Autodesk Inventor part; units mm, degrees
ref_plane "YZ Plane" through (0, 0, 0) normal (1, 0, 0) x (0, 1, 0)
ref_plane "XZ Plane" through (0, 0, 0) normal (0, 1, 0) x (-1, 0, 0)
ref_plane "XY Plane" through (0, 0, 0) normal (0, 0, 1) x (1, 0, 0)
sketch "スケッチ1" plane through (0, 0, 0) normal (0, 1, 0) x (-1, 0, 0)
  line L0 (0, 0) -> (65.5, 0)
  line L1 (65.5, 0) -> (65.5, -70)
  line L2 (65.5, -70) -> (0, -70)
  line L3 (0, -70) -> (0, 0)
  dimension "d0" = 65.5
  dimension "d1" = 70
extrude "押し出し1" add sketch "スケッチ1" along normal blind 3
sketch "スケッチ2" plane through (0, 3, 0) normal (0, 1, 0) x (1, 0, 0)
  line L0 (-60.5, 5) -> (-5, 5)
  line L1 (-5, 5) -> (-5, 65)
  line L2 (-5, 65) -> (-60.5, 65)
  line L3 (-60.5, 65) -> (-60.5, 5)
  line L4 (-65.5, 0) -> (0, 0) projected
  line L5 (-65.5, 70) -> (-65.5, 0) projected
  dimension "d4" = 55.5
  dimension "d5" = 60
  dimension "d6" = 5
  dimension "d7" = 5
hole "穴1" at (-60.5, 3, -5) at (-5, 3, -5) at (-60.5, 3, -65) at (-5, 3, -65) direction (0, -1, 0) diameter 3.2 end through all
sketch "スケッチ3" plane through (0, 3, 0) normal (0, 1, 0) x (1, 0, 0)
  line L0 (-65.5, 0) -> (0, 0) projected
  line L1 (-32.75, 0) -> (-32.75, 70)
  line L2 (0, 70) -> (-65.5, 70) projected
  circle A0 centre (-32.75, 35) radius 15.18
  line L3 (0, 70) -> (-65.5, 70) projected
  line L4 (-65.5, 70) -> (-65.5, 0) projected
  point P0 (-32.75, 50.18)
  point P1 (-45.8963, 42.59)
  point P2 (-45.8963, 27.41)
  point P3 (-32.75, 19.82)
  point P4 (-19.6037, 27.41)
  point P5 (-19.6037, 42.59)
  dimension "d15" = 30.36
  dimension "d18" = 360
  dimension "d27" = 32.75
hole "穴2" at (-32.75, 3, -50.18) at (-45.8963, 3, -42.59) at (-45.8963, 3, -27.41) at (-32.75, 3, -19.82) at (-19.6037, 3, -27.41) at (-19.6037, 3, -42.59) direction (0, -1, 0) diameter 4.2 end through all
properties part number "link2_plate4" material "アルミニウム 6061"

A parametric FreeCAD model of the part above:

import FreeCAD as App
import Part
import Sketcher
from FreeCAD import Vector
Q = App.Units.Quantity


def add_polygon(sketch, points):
    """Adds a closed chain of lines whose ends are joined by coincident constraints."""
    first, n = sketch.GeometryCount, len(points)
    for a, b in zip(points, points[1:] + points[:1]):
        sketch.addGeometry(Part.LineSegment(App.Vector(*a, 0), App.Vector(*b, 0)), False)
    for i in range(n):
        sketch.addConstraint(Sketcher.Constraint("Coincident", first + i, 2, first + (i + 1) % n, 1))

doc = App.newDocument("Part")
params = doc.addObject("Spreadsheet::Sheet", "Params")
for row, (alias, value) in enumerate([
    ("sketch1_height", "70 mm"),
    ("sketch1_width", "65.5 mm"),
    ("pad1_length", "3 mm"),
    ("sketch2_diameter", "3.2 mm"),
    ("hole_diameter", "3.2 mm"),
    ("sketch3_diameter", "4.2 mm"),
    ("hole2_diameter", "4.2 mm"),
], start=1):
    params.set(f"A{row}", alias)
    params.set(f"B{row}", "=" + value)
    params.setAlias(f"B{row}", alias)

body = doc.addObject("PartDesign::Body", "Body")

sketch1 = body.newObject("Sketcher::SketchObject", "Sketch")
sketch1.AttachmentSupport = (doc.getObject("XZ_Plane"), [""])
sketch1.MapMode = "FlatFace"
add_polygon(sketch1, [(-66, 0), (0, 0), (0, -70), (-66, -70)])
sketch1.addConstraint([
    Sketcher.Constraint("Horizontal", 0),
    Sketcher.Constraint("Vertical", 1),
    Sketcher.Constraint("Horizontal", 2),
    Sketcher.Constraint("Vertical", 3),
    Sketcher.Constraint("Coincident", 0, 2, -1, 1),
    Sketcher.Constraint("DistanceY", 1, 2, 1, 1, Q("70 mm")),
    Sketcher.Constraint("DistanceX", 0, 1, 0, 2, Q("65.5 mm")),
])
sketch1.setExpression("Constraints[9]", "Params.sketch1_height")
sketch1.setExpression("Constraints[10]", "Params.sketch1_width")
pad1 = body.newObject("PartDesign::Pad", "Pad")
pad1.Profile = sketch1
pad1.setExpression("Length", "Params.pad1_length")
pad1.Reversed = True

sketch2 = body.newObject("Sketcher::SketchObject", "Sketch001")
sketch2.AttachmentSupport = (doc.getObject("XZ_Plane"), [""])
sketch2.MapMode = "FlatFace"
sketch2.AttachmentOffset = App.Placement(Vector(0, 0, -3), App.Rotation())
sketch2.addGeometry([
    Part.Circle(Vector(-60.5, -5, 0), Vector(0, 0, 1), 1.6),
    Part.Circle(Vector(-5, -5, 0), Vector(0, 0, 1), 1.6),
    Part.Circle(Vector(-60.5, -65, 0), Vector(0, 0, 1), 1.6),
    Part.Circle(Vector(-5, -65, 0), Vector(0, 0, 1), 1.6),
], False)
sketch2.addConstraint([
    Sketcher.Constraint("Equal", 0, 1),
    Sketcher.Constraint("Equal", 1, 2),
    Sketcher.Constraint("Equal", 2, 3),
    Sketcher.Constraint("Horizontal", 0, 3, 1, 3),
    Sketcher.Constraint("Horizontal", 2, 3, 3, 3),
    Sketcher.Constraint("Vertical", 0, 3, 2, 3),
    Sketcher.Constraint("Vertical", 1, 3, 3, 3),
    Sketcher.Constraint("Diameter", 0, Q("3.2 mm")),
    Sketcher.Constraint("DistanceY", 0, 3, -1, 1, Q("5 mm")),
    Sketcher.Constraint("DistanceX", 1, 3, -1, 1, Q("5 mm")),
    Sketcher.Constraint("DistanceY", 2, 3, -1, 1, Q("65 mm")),
    Sketcher.Constraint("DistanceX", 0, 3, -1, 1, Q("60.5 mm")),
])
sketch2.setExpression("Constraints[7]", "Params.sketch2_diameter")
doc.recompute()
hole = body.newObject("PartDesign::Hole", "Hole")
hole.Profile = sketch2
hole.ThreadType = "None"
hole.setExpression("Diameter", "Params.hole_diameter")
hole.DepthType = "ThroughAll"
hole.Reversed = True

sketch3 = body.newObject("Sketcher::SketchObject", "Sketch002")
sketch3.AttachmentSupport = (doc.getObject("XZ_Plane"), [""])
sketch3.MapMode = "FlatFace"
sketch3.AttachmentOffset = App.Placement(Vector(0, 0, -3), App.Rotation())
sketch3.addGeometry([
    Part.Circle(Vector(-32.8, -50.2, 0), Vector(0, 0, 1), 2.1),
    Part.Circle(Vector(-45.9, -42.6, 0), Vector(0, 0, 1), 2.1),
    Part.Circle(Vector(-45.9, -27.4, 0), Vector(0, 0, 1), 2.1),
    Part.Circle(Vector(-32.8, -19.8, 0), Vector(0, 0, 1), 2.1),
    Part.Circle(Vector(-19.6, -27.4, 0), Vector(0, 0, 1), 2.1),
    Part.Circle(Vector(-19.6, -42.6, 0), Vector(0, 0, 1), 2.1),
], False)
sketch3.addConstraint([
    Sketcher.Constraint("Equal", 0, 1),
    Sketcher.Constraint("Equal", 1, 2),
    Sketcher.Constraint("Equal", 2, 3),
    Sketcher.Constraint("Equal", 3, 4),
    Sketcher.Constraint("Equal", 4, 5),
    Sketcher.Constraint("Horizontal", 2, 3, 4, 3),
    Sketcher.Constraint("Horizontal", 1, 3, 5, 3),
    Sketcher.Constraint("Vertical", 1, 3, 2, 3),
    Sketcher.Constraint("Vertical", 0, 3, 3, 3),
    Sketcher.Constraint("Vertical", 4, 3, 5, 3),
    Sketcher.Constraint("Diameter", 0, Q("4.2 mm")),
    Sketcher.Constraint("DistanceX", 0, 3, -1, 1, Q("32.75 mm")),
    Sketcher.Constraint("DistanceY", 0, 3, -1, 1, Q("50.18 mm")),
    Sketcher.Constraint("DistanceY", 1, 3, -1, 1, Q("42.59 mm")),
    Sketcher.Constraint("DistanceY", 2, 3, -1, 1, Q("27.41 mm")),
    Sketcher.Constraint("DistanceY", 3, 3, -1, 1, Q("19.82 mm")),
    Sketcher.Constraint("DistanceX", 1, 3, -1, 1, Q("45.8963 mm")),
    Sketcher.Constraint("DistanceX", 4, 3, -1, 1, Q("19.6037 mm")),
])
sketch3.setExpression("Constraints[10]", "Params.sketch3_diameter")
doc.recompute()
hole2 = body.newObject("PartDesign::Hole", "Hole001")
hole2.Profile = sketch3
hole2.ThreadType = "None"
hole2.setExpression("Diameter", "Params.hole2_diameter")
hole2.DepthType = "ThroughAll"
hole2.Reversed = True

doc.recompute()
